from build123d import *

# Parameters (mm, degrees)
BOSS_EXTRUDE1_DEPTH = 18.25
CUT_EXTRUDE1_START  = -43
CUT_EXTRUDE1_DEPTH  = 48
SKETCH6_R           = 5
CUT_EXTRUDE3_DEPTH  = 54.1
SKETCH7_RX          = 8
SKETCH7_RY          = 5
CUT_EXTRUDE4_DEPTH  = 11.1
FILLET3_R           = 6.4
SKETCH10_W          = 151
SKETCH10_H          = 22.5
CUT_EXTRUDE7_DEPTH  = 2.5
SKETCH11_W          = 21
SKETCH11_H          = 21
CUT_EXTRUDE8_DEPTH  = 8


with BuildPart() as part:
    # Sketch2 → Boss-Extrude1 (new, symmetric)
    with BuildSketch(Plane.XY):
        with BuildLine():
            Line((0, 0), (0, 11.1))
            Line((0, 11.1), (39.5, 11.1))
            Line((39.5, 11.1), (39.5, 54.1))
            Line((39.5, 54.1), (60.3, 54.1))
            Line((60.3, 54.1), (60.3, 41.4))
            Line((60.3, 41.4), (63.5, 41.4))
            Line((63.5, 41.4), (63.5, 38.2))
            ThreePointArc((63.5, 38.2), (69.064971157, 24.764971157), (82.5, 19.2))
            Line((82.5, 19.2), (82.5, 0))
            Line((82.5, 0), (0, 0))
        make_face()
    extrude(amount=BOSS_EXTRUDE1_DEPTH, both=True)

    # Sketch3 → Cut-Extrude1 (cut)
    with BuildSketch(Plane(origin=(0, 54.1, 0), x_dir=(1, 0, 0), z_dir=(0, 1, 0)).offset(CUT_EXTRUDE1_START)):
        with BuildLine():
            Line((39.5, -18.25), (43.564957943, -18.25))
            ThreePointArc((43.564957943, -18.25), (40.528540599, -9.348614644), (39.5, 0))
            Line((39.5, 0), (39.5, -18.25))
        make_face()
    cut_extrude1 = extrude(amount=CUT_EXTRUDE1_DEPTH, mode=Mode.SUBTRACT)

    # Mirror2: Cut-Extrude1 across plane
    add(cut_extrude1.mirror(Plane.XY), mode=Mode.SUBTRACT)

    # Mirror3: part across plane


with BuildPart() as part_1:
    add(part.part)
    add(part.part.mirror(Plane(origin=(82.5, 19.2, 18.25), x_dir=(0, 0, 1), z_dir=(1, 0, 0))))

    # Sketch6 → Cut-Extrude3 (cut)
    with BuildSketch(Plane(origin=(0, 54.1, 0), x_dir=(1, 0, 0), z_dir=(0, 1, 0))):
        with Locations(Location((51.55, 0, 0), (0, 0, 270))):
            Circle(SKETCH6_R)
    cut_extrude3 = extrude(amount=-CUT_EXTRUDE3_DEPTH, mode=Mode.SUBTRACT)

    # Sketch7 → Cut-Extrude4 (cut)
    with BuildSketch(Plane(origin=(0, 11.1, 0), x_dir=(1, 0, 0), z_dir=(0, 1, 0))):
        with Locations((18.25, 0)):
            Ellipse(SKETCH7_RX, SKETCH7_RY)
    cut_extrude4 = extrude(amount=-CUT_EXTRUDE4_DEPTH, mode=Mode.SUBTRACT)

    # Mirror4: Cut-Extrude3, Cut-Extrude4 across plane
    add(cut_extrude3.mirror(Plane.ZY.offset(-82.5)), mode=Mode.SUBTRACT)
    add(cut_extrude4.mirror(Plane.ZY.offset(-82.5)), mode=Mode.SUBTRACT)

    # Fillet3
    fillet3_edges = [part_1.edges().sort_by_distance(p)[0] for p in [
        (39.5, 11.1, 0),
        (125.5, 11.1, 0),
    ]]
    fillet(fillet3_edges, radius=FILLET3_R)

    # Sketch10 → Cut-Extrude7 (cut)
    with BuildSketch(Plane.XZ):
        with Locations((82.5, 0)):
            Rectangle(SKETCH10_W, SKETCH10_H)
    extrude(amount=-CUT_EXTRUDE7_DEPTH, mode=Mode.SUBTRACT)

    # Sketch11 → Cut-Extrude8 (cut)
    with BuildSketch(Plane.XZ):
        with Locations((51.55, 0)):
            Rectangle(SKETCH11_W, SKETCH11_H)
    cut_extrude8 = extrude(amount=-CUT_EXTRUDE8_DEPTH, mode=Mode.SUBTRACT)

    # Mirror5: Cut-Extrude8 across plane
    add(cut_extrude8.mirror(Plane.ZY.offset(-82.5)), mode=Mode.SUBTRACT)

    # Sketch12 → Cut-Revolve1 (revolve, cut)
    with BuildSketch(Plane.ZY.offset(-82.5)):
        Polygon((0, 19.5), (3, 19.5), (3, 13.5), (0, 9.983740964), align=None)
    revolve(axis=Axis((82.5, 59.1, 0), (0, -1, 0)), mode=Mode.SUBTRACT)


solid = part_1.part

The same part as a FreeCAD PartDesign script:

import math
import FreeCAD as App
import Part
import Sketcher

V = App.Vector


def edges_at(feature, points):
    """Names of the edges that pass closest to the given points."""
    edges = feature.Shape.Edges
    near = lambda p: min(range(len(edges)), key=lambda i: edges[i].distToShape(Part.Vertex(*p))[0])
    return sorted({f"Edge{near(p) + 1}" for p in points})


def add_polygon(sketch, points):
    """Adds a closed chain of lines whose ends are joined by coincident constraints."""
    first, n = sketch.GeometryCount, len(points)
    for a, b in zip(points, points[1:] + points[:1]):
        sketch.addGeometry(Part.LineSegment(App.Vector(*a, 0), App.Vector(*b, 0)), False)
    for i in range(n):
        sketch.addConstraint(Sketcher.Constraint("Coincident", first + i, 2, first + (i + 1) % n, 1))

doc = App.newDocument("Part")
body = doc.addObject("PartDesign::Body", "Body")

# Sketch on XY plane
sketch1 = body.newObject("Sketcher::SketchObject", "Sketch")
sketch1.AttachmentSupport = (doc.getObject("XY_Plane"), [""])
sketch1.MapMode = "FlatFace"
sketch1.addGeometry(Part.LineSegment(V(0, 11.1, 0), V(0, 0, 0)), False)
sketch1.addGeometry(Part.LineSegment(V(0, 0, 0), V(82.5, 0, 0)), False)
sketch1.addGeometry(Part.LineSegment(V(82.5, 0, 0), V(82.5, 19.2, 0)), False)
sketch1.addGeometry(Part.ArcOfCircle(Part.Circle(V(82.5, 38.2, 0), V(0, 0, 1), 19), math.radians(180), math.radians(270)), False)
sketch1.addGeometry(Part.LineSegment(V(63.5, 38.2, 0), V(63.5, 41.4, 0)), False)
sketch1.addGeometry(Part.LineSegment(V(63.5, 41.4, 0), V(60.3, 41.4, 0)), False)
sketch1.addGeometry(Part.LineSegment(V(60.3, 41.4, 0), V(60.3, 54.1, 0)), False)
sketch1.addGeometry(Part.LineSegment(V(60.3, 54.1, 0), V(39.5, 54.1, 0)), False)
sketch1.addGeometry(Part.LineSegment(V(39.5, 54.1, 0), V(39.5, 11.1, 0)), False)
sketch1.addGeometry(Part.LineSegment(V(39.5, 11.1, 0), V(0, 11.1, 0)), False)
sketch1.addConstraint(Sketcher.Constraint("Coincident", 0, 2, 1, 1))
sketch1.addConstraint(Sketcher.Constraint("Coincident", 1, 2, 2, 1))
sketch1.addConstraint(Sketcher.Constraint("Coincident", 2, 2, 3, 2))
sketch1.addConstraint(Sketcher.Constraint("Tangent", 3, 1, 4, 1))
sketch1.addConstraint(Sketcher.Constraint("Coincident", 4, 2, 5, 1))
sketch1.addConstraint(Sketcher.Constraint("Coincident", 5, 2, 6, 1))
sketch1.addConstraint(Sketcher.Constraint("Coincident", 6, 2, 7, 1))
sketch1.addConstraint(Sketcher.Constraint("Coincident", 7, 2, 8, 1))
sketch1.addConstraint(Sketcher.Constraint("Coincident", 8, 2, 9, 1))
sketch1.addConstraint(Sketcher.Constraint("Coincident", 9, 2, 0, 1))
sketch1.addConstraint(Sketcher.Constraint("Vertical", 0))
sketch1.addConstraint(Sketcher.Constraint("Horizontal", 1))
sketch1.addConstraint(Sketcher.Constraint("Vertical", 2))
sketch1.addConstraint(Sketcher.Constraint("Vertical", 4))
sketch1.addConstraint(Sketcher.Constraint("Horizontal", 5))
sketch1.addConstraint(Sketcher.Constraint("Vertical", 6))
sketch1.addConstraint(Sketcher.Constraint("Horizontal", 7))
sketch1.addConstraint(Sketcher.Constraint("Vertical", 8))
sketch1.addConstraint(Sketcher.Constraint("Horizontal", 9))
sketch1.addConstraint(Sketcher.Constraint("Coincident", 0, 2, -1, 1))
sketch1.addConstraint(Sketcher.Constraint("Vertical", 3, 3, 1, 2))
sketch1.addConstraint(Sketcher.Constraint("Equal", 5, 4))
sketch1.addConstraint(Sketcher.Constraint("Radius", 3, 19.0))
sketch1.addConstraint(Sketcher.Constraint("DistanceY", 8, 2, 8, 1, 43.0))
sketch1.addConstraint(Sketcher.Constraint("DistanceX", 1, 1, 1, 2, 82.5))
sketch1.addConstraint(Sketcher.Constraint("DistanceX", 5, 2, 5, 1, 3.2))
sketch1.addConstraint(Sketcher.Constraint("DistanceX", 7, 2, 7, 1, 20.8))
sketch1.addConstraint(Sketcher.Constraint("DistanceY", 0, 2, 0, 1, 11.1))
sketch1.addConstraint(Sketcher.Constraint("DistanceY", 2, 1, 2, 2, 19.2))
pad1 = body.newObject("PartDesign::Pad", "Pad")
pad1.Profile = sketch1
pad1.Length = 36.5
pad1.Midplane = True

# Sketch on XZ plane
sketch2 = body.newObject("Sketcher::SketchObject", "Sketch001")
sketch2.AttachmentSupport = (doc.getObject("XZ_Plane"), [""])
sketch2.MapMode = "FlatFace"
sketch2.AttachmentOffset = App.Placement(V(0, 0, -11.1), App.Rotation())
sketch2.addGeometry(Part.LineSegment(V(39.5, 18.2, 0), V(43.6, 18.2, 0)), False)
sketch2.addGeometry(Part.ArcOfCircle(Part.Circle(V(82.5, 0, 0), V(0, 0, 1), 43), math.radians(155), math.radians(180)), False)
sketch2.addGeometry(Part.LineSegment(V(39.5, 0, 0), V(39.5, 18.2, 0)), False)
sketch2.addConstraint(Sketcher.Constraint("Coincident", 0, 2, 1, 1))
sketch2.addConstraint(Sketcher.Constraint("Tangent", 1, 2, 2, 1))
sketch2.addConstraint(Sketcher.Constraint("Coincident", 2, 2, 0, 1))
sketch2.addConstraint(Sketcher.Constraint("Horizontal", 0))
sketch2.addConstraint(Sketcher.Constraint("Vertical", 2))
sketch2.addConstraint(Sketcher.Constraint("PointOnObject", 1, 3, -1))
sketch2.addConstraint(Sketcher.Constraint("Radius", 1, 43.0))
sketch2.addConstraint(Sketcher.Constraint("DistanceY", 2, 1, 2, 2, 18.25))
sketch2.addConstraint(Sketcher.Constraint("DistanceX", -1, 1, 1, 3, 82.5))
pocket1 = body.newObject("PartDesign::Pocket", "Pocket")
pocket1.Profile = sketch2
pocket1.Length = 48
doc.recompute()

mirrored = body.newObject("PartDesign::Mirrored", "Mirrored")
mirrored.Originals = [pocket1]
mirrored.MirrorPlane = (doc.getObject("XY_Plane"), [""])
body.Tip = mirrored
body2 = doc.addObject("PartDesign::Body", "Body001")
doc.recompute()

body2.BaseFeature = body
doc.recompute()

mirroring = doc.addObject("Part::Mirroring", "Mirroring")
mirroring.Source = body
mirroring.Base = V(82.5, 19.2, 18.25)
mirroring.Normal = V(1, 0, 0)
body3 = doc.addObject("PartDesign::Body", "Body002")
body3.BaseFeature = mirroring
boolean = body2.newObject("PartDesign::Boolean", "Boolean")
boolean.Type = "Fuse"
boolean.addObjects([body3])
doc.recompute()

# Sketch on XZ plane
sketch3 = body2.newObject("Sketcher::SketchObject", "Sketch002")
sketch3.AttachmentSupport = (doc.getObject("XZ_Plane001"), [""])
sketch3.MapMode = "FlatFace"
sketch3.AttachmentOffset = App.Placement(V(0, 0, -54.1), App.Rotation())
sketch3.addGeometry(Part.Circle(V(52, 0, 0), V(0, 0, 1), 5), False)
sketch3.addConstraint(Sketcher.Constraint("PointOnObject", 0, 3, -1))
sketch3.addConstraint(Sketcher.Constraint("Diameter", 0, 10.0))
sketch3.addConstraint(Sketcher.Constraint("DistanceX", -1, 1, 0, 3, 51.55))
pocket2 = body2.newObject("PartDesign::Pocket", "Pocket001")
pocket2.Profile = sketch3
pocket2.Length = 54.1
pocket2.Reversed = True

# Sketch on XZ plane
sketch4 = body2.newObject("Sketcher::SketchObject", "Sketch003")
sketch4.AttachmentSupport = (doc.getObject("XZ_Plane001"), [""])
sketch4.MapMode = "FlatFace"
sketch4.AttachmentOffset = App.Placement(V(0, 0, -11.1), App.Rotation())
sketch4.addGeometry(Part.Ellipse(V(26.25, 0, 0), V(18.25, 5, 0), V(18.25, 0, 0)), False)
sketch4.addConstraint(Sketcher.Constraint("Block", 0))
pocket3 = body2.newObject("PartDesign::Pocket", "Pocket002")
pocket3.Profile = sketch4
pocket3.Length = 11.1
pocket3.Reversed = True
doc.recompute()

datumplane = body2.newObject("PartDesign::Plane", "DatumPlane")
datumplane.AttachmentSupport = (doc.getObject("YZ_Plane001"), [""])
datumplane.MapMode = "FlatFace"
datumplane.AttachmentOffset = App.Placement(V(0, 0, 82.5), App.Rotation())
mirrored2 = body2.newObject("PartDesign::Mirrored", "Mirrored001")
mirrored2.Originals = [pocket2, pocket3]
mirrored2.MirrorPlane = (datumplane, [""])
body2.Tip = mirrored2
doc.recompute()

fillet = body2.newObject("PartDesign::Fillet", "Fillet")
fillet.Base = (mirrored2, edges_at(mirrored2, [(40.529, 11.1, -9.349), (124.471, 11.1, -9.349)]))
fillet.Radius = 6.4

# Sketch on XZ plane
sketch5 = body2.newObject("Sketcher::SketchObject", "Sketch004")
sketch5.AttachmentSupport = (doc.getObject("XZ_Plane001"), [""])
sketch5.MapMode = "FlatFace"
add_polygon(sketch5, [(7, 11), (7, -11), (158, -11), (158, 11)])  # lines 0-3
sketch5.addConstraint(Sketcher.Constraint("Vertical", 0))
sketch5.addConstraint(Sketcher.Constraint("Horizontal", 1))
sketch5.addConstraint(Sketcher.Constraint("Vertical", 2))
sketch5.addConstraint(Sketcher.Constraint("Horizontal", 3))
sketch5.addConstraint(Sketcher.Constraint("DistanceX", 1, 1, 1, 2, 151.0))
sketch5.addConstraint(Sketcher.Constraint("DistanceY", 0, 2, 0, 1, 22.5))
sketch5.addConstraint(Sketcher.Constraint("DistanceX", -1, 1, 0, 2, 7.0))
sketch5.addConstraint(Sketcher.Constraint("DistanceY", 0, 2, -1, 1, 11.25))
pocket4 = body2.newObject("PartDesign::Pocket", "Pocket003")
pocket4.Profile = sketch5
pocket4.Length = 2.5

# Sketch on XZ plane
sketch6 = body2.newObject("Sketcher::SketchObject", "Sketch005")
sketch6.AttachmentSupport = (doc.getObject("XZ_Plane001"), [""])
sketch6.MapMode = "FlatFace"
add_polygon(sketch6, [(41, 10), (41, -10), (62, -10), (62, 10)])  # lines 0-3
sketch6.addConstraint(Sketcher.Constraint("Vertical", 0))
sketch6.addConstraint(Sketcher.Constraint("Horizontal", 1))
sketch6.addConstraint(Sketcher.Constraint("Vertical", 2))
sketch6.addConstraint(Sketcher.Constraint("Horizontal", 3))
sketch6.addConstraint(Sketcher.Constraint("Equal", 3, 0))
sketch6.addConstraint(Sketcher.Constraint("DistanceX", 1, 1, 1, 2, 21.0))
sketch6.addConstraint(Sketcher.Constraint("DistanceY", 0, 2, -1, 1, 10.5))
sketch6.addConstraint(Sketcher.Constraint("DistanceX", -1, 1, 0, 2, 41.05))
pocket5 = body2.newObject("PartDesign::Pocket", "Pocket004")
pocket5.Profile = sketch6
pocket5.Length = 8
doc.recompute()

datumplane2 = body2.newObject("PartDesign::Plane", "DatumPlane001")
datumplane2.AttachmentSupport = (doc.getObject("YZ_Plane001"), [""])
datumplane2.MapMode = "FlatFace"
datumplane2.AttachmentOffset = App.Placement(V(0, 0, 82.5), App.Rotation())
mirrored3 = body2.newObject("PartDesign::Mirrored", "Mirrored002")
mirrored3.Originals = [pocket5]
mirrored3.MirrorPlane = (datumplane2, [""])
body2.Tip = mirrored3

# Sketch on YZ plane
sketch7 = body2.newObject("Sketcher::SketchObject", "Sketch006")
sketch7.AttachmentSupport = (doc.getObject("YZ_Plane001"), [""])
sketch7.MapMode = "FlatFace"
sketch7.AttachmentOffset = App.Placement(V(0, 0, 82.5), App.Rotation())
add_polygon(sketch7, [(19.5, 3), (19.5, 0), (10, 0), (13.5, 3)])  # lines 0-3
sketch7.addConstraint(Sketcher.Constraint("Vertical", 0))
sketch7.addConstraint(Sketcher.Constraint("Horizontal", 1))
sketch7.addConstraint(Sketcher.Constraint("Horizontal", 3))
sketch7.addConstraint(Sketcher.Constraint("PointOnObject", 0, 2, -1))
sketch7.addConstraint(Sketcher.Constraint("DistanceX", 3, 1, 3, 2, 6.0))
sketch7.addConstraint(Sketcher.Constraint("DistanceY", 0, 2, 0, 1, 3.0))
sketch7.addConstraint(Sketcher.Constraint("DistanceX", -1, 1, 0, 2, 19.5))
sketch7.addConstraint(Sketcher.Constraint("DistanceX", 1, 2, 1, 1, 9.516259))
groove = body2.newObject("PartDesign::Groove", "Groove")
groove.Profile = sketch7
groove.ReferenceAxis = (sketch7, ["H_Axis"])
groove.Angle = 360
mirroring.Visibility = False

doc.recompute()
